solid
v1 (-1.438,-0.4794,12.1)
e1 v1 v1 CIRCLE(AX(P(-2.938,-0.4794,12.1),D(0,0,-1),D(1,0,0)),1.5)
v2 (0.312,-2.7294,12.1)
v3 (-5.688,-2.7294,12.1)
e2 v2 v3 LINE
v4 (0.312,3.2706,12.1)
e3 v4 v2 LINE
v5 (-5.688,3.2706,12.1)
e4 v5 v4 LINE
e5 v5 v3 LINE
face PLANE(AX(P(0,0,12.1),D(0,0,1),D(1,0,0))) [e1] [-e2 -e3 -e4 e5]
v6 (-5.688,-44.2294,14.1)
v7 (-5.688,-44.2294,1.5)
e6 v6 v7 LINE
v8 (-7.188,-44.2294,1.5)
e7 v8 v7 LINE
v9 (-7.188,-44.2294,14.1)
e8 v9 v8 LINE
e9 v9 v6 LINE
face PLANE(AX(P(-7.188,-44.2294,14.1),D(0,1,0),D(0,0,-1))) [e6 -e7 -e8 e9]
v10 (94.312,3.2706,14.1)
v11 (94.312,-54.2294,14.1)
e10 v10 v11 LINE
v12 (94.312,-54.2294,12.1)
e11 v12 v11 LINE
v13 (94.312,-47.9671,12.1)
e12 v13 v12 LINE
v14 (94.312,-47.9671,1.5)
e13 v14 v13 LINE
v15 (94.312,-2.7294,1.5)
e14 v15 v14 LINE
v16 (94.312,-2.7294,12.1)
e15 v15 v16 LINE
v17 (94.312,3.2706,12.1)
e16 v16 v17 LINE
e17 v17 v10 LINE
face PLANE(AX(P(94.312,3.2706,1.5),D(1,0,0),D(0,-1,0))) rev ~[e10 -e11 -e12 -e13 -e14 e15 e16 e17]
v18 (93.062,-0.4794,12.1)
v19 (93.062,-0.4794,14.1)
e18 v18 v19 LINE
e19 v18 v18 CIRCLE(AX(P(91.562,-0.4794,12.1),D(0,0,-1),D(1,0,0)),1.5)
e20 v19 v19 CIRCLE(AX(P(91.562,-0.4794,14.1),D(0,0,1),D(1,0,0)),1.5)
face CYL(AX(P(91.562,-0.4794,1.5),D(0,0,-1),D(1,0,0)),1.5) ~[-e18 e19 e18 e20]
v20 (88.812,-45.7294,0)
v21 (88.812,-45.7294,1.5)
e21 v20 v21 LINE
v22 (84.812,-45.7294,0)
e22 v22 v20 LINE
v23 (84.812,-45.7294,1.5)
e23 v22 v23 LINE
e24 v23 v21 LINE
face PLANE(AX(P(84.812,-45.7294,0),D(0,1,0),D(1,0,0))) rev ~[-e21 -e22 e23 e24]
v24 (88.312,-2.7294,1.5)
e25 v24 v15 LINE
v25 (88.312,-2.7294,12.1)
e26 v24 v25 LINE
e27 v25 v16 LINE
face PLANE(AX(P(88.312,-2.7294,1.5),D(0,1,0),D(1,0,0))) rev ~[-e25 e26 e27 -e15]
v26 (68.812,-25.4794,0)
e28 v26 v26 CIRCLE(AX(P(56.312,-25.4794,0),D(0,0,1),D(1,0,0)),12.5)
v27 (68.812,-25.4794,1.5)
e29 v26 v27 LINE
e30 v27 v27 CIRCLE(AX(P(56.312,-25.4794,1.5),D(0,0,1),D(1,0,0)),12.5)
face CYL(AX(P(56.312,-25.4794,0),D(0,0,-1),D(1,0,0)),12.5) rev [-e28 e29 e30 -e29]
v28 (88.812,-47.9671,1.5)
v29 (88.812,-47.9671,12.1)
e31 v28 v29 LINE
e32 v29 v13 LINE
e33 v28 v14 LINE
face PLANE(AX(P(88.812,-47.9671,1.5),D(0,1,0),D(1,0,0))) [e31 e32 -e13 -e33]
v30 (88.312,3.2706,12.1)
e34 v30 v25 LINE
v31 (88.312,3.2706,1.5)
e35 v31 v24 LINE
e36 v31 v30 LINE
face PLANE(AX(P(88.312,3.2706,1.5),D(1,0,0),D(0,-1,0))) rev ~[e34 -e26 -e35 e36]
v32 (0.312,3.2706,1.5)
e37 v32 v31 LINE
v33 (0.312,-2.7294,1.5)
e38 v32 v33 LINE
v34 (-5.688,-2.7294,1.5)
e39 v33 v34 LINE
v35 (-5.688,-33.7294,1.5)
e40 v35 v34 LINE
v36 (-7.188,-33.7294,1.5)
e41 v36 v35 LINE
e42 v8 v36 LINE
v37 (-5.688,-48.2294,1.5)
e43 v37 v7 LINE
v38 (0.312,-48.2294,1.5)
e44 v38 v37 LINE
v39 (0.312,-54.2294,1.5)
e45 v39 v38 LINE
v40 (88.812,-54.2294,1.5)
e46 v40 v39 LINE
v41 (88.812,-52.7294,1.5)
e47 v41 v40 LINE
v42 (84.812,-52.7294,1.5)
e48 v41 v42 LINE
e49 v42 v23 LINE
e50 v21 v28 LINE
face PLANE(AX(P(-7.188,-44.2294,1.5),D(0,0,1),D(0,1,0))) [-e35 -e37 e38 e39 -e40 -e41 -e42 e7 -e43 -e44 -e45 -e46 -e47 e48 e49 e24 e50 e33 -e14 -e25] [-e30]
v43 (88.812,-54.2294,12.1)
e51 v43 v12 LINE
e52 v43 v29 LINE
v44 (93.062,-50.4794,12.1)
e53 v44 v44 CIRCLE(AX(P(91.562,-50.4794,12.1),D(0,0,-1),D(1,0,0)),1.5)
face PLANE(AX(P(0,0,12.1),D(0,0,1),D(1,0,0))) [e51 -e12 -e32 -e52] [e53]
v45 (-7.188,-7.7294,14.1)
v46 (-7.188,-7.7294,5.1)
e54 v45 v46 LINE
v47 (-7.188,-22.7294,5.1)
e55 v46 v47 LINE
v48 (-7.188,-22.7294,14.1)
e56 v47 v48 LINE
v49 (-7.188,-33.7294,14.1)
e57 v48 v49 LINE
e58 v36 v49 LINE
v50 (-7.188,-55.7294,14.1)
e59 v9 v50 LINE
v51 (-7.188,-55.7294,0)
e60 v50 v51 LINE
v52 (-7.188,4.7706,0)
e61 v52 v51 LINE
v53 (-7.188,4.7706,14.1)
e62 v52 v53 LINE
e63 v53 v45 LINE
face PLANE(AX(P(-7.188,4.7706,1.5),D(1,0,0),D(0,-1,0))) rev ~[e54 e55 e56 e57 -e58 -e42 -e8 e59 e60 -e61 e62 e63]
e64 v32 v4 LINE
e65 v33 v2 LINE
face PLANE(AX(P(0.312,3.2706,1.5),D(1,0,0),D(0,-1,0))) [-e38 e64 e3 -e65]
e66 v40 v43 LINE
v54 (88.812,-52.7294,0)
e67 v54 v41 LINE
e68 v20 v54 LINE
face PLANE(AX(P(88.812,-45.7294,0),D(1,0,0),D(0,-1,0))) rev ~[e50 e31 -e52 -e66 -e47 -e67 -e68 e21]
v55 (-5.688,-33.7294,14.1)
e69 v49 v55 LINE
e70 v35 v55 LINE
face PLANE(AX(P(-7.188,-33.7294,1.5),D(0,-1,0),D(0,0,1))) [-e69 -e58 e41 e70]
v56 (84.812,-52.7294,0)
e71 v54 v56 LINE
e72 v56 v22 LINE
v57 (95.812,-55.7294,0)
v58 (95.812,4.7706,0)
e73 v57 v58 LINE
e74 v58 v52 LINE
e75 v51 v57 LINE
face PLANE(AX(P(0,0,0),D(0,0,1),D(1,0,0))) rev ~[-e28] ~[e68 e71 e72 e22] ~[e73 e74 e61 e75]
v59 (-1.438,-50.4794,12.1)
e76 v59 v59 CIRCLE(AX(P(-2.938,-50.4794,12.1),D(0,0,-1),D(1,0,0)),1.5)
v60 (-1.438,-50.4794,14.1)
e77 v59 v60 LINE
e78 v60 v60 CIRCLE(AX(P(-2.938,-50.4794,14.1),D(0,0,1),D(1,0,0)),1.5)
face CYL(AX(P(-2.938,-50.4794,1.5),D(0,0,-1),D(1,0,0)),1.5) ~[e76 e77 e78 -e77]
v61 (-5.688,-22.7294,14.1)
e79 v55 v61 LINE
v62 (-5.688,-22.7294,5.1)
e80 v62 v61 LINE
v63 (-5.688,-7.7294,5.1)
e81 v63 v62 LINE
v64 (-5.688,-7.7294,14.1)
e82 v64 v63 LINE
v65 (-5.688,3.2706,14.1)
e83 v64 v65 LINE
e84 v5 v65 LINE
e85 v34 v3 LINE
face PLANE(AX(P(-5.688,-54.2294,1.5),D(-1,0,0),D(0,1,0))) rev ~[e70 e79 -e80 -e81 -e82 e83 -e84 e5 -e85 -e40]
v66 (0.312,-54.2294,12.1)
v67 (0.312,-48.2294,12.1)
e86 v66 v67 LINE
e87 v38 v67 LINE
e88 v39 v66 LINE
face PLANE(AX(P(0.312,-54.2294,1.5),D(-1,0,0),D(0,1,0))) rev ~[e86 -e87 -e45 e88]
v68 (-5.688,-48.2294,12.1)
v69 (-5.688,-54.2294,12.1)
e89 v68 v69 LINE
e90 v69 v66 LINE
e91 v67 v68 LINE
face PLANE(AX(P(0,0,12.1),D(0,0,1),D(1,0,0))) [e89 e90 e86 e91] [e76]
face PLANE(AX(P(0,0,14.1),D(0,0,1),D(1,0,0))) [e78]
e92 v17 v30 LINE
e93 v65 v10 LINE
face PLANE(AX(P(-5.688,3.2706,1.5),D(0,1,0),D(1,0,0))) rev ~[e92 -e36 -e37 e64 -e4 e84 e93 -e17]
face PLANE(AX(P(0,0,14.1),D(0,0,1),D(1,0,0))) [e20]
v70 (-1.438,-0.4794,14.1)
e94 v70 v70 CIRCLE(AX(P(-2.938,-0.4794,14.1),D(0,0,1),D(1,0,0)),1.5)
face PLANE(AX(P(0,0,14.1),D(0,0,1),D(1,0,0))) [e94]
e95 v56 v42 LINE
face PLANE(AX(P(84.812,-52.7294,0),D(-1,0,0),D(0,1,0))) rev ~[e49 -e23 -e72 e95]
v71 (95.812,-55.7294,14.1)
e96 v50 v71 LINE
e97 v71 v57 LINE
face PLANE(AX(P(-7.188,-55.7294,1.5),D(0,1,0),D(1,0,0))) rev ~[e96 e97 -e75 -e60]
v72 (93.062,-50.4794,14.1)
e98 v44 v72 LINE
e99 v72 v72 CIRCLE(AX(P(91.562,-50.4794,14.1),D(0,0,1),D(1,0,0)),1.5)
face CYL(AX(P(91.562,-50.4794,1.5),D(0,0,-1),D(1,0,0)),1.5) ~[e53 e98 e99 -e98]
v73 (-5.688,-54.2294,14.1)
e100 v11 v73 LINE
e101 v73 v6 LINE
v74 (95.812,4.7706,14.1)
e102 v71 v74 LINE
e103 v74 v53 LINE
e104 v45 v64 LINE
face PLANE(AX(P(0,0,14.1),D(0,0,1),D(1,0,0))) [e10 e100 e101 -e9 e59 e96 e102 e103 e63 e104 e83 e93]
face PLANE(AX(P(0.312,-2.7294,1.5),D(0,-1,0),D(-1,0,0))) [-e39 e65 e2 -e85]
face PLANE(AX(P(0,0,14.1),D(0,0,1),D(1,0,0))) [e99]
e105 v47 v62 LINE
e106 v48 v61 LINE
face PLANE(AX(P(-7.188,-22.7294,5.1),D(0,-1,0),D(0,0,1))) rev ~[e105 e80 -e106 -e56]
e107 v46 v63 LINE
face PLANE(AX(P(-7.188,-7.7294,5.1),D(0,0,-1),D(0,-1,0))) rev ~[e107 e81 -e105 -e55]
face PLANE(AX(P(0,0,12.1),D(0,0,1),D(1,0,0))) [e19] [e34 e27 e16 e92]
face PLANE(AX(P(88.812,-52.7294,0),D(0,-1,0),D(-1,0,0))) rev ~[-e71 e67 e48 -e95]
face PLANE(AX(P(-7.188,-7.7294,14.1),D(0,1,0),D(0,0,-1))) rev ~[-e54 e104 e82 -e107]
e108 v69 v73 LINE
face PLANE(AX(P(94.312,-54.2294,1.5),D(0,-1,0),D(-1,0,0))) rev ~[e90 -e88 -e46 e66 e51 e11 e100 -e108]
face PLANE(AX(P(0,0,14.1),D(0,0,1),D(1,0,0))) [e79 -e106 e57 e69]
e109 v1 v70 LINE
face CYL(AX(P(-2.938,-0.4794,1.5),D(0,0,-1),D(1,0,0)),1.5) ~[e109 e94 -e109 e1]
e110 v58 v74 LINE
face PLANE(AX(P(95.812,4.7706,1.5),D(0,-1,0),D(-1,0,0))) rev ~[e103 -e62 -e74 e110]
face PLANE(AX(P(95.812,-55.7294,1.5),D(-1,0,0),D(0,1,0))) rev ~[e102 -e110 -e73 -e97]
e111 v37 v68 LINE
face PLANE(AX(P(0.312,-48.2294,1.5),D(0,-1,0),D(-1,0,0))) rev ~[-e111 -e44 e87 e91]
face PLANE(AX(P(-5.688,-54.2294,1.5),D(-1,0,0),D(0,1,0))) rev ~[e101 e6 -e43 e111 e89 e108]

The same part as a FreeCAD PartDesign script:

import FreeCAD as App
import Part
import Sketcher
Q = App.Units.Quantity

doc = App.newDocument("Part")
body = doc.addObject("PartDesign::Body", "Body")

sketch1 = body.newObject("Sketcher::SketchObject", "Sketch")
sketch1.AttachmentSupport = (doc.getObject("XY_Plane"), [""])
sketch1.MapMode = "FlatFace"
sketch1.addGeometry([
    Part.LineSegment(App.Vector(95.812, -55.7294, 0), App.Vector(95.812, 4.7706, 0)),
    Part.LineSegment(App.Vector(95.812, 4.7706, 0), App.Vector(-7.188, 4.7706, 0)),
    Part.LineSegment(App.Vector(-7.188, 4.7706, 0), App.Vector(-7.188, -55.7294, 0)),
    Part.LineSegment(App.Vector(-7.188, -55.7294, 0), App.Vector(95.812, -55.7294, 0)),
    Part.Circle(App.Vector(56.312, -25.4794, 0), App.Vector(0, 0, 1), 12.5),
], False)
sketch1.addConstraint([
    Sketcher.Constraint("Coincident", 0, 2, 1, 1),
    Sketcher.Constraint("Coincident", 1, 2, 2, 1),
    Sketcher.Constraint("Coincident", 2, 2, 3, 1),
    Sketcher.Constraint("Coincident", 3, 2, 0, 1),
    Sketcher.Constraint("Vertical", 0),
    Sketcher.Constraint("Horizontal", 1),
    Sketcher.Constraint("Vertical", 2),
    Sketcher.Constraint("Horizontal", 3),
    Sketcher.Constraint("Diameter", 4, Q("25 mm")),
    Sketcher.Constraint("DistanceX", 1, 2, 1, 1, Q("103 mm")),
    Sketcher.Constraint("DistanceY", 0, 1, 0, 2, Q("60.5 mm")),
    Sketcher.Constraint("DistanceX", 4, 3, 0, 2, Q("39.5 mm")),
    Sketcher.Constraint("DistanceY", 4, 3, 0, 2, Q("30.25 mm")),
    Sketcher.Constraint("DistanceX", -1, 1, 4, 3, Q("56.312 mm")),
    Sketcher.Constraint("DistanceY", 4, 3, -1, 1, Q("25.4794 mm")),
])
pad1 = body.newObject("PartDesign::Pad", "Pad")
pad1.Profile = sketch1
pad1.Length = 1.5

sketch2 = body.newObject("Sketcher::SketchObject", "Sketch001")
sketch2.AttachmentSupport = (doc.getObject("XY_Plane"), [""])
sketch2.MapMode = "FlatFace"
sketch2.AttachmentOffset = App.Placement(App.Vector(0, 0, 1.5), App.Rotation())
sketch2.addGeometry([
    Part.LineSegment(App.Vector(95.812, -55.7294, 0), App.Vector(95.812, 4.7706, 0)),
    Part.LineSegment(App.Vector(95.812, 4.7706, 0), App.Vector(-7.188, 4.7706, 0)),
    Part.LineSegment(App.Vector(-7.188, 4.7706, 0), App.Vector(-7.188, -55.7294, 0)),
    Part.LineSegment(App.Vector(-7.188, -55.7294, 0), App.Vector(95.812, -55.7294, 0)),
    Part.LineSegment(App.Vector(-5.688, -54.2294, 0), App.Vector(-5.688, 3.2706, 0)),
    Part.LineSegment(App.Vector(-5.688, 3.2706, 0), App.Vector(94.312, 3.2706, 0)),
    Part.LineSegment(App.Vector(94.312, 3.2706, 0), App.Vector(94.312, -54.2294, 0)),
    Part.LineSegment(App.Vector(94.312, -54.2294, 0), App.Vector(-5.688, -54.2294, 0)),
], False)
sketch2.addConstraint([
    Sketcher.Constraint("Coincident", 0, 2, 1, 1),
    Sketcher.Constraint("Coincident", 1, 2, 2, 1),
    Sketcher.Constraint("Coincident", 2, 2, 3, 1),
    Sketcher.Constraint("Coincident", 3, 2, 0, 1),
    Sketcher.Constraint("Coincident", 4, 2, 5, 1),
    Sketcher.Constraint("Coincident", 5, 2, 6, 1),
    Sketcher.Constraint("Coincident", 6, 2, 7, 1),
    Sketcher.Constraint("Coincident", 7, 2, 4, 1),
    Sketcher.Constraint("Vertical", 0),
    Sketcher.Constraint("Horizontal", 1),
    Sketcher.Constraint("Vertical", 2),
    Sketcher.Constraint("Horizontal", 3),
    Sketcher.Constraint("Vertical", 4),
    Sketcher.Constraint("Horizontal", 5),
    Sketcher.Constraint("Vertical", 6),
    Sketcher.Constraint("Horizontal", 7),
    Sketcher.Constraint("DistanceX", 1, 2, 4, 2, Q("1.5 mm")),
    Sketcher.Constraint("DistanceY", 4, 2, 1, 2, Q("1.5 mm")),
    Sketcher.Constraint("DistanceX", 5, 2, 0, 2, Q("1.5 mm")),
    Sketcher.Constraint("DistanceY", 3, 2, 6, 2, Q("1.5 mm")),
    Sketcher.Constraint("DistanceX", 1, 2, 1, 1, Q("103 mm")),
    Sketcher.Constraint("DistanceY", 0, 1, 0, 2, Q("60.5 mm")),
    Sketcher.Constraint("DistanceX", -1, 1, 0, 2, Q("95.812 mm")),
    Sketcher.Constraint("DistanceY", -1, 1, 0, 2, Q("4.7706 mm")),
])
pad2 = body.newObject("PartDesign::Pad", "Pad001")
pad2.Profile = sketch2
pad2.Length = 12.6

sketch3 = body.newObject("Sketcher::SketchObject", "Sketch002")
sketch3.AttachmentSupport = (doc.getObject("XY_Plane"), [""])
sketch3.MapMode = "FlatFace"
sketch3.addGeometry([
    Part.LineSegment(App.Vector(84.812, -52.7294, 0), App.Vector(84.812, -45.7294, 0)),
    Part.LineSegment(App.Vector(84.812, -45.7294, 0), App.Vector(88.812, -45.7294, 0)),
    Part.LineSegment(App.Vector(88.812, -45.7294, 0), App.Vector(88.812, -52.7294, 0)),
    Part.LineSegment(App.Vector(88.812, -52.7294, 0), App.Vector(84.812, -52.7294, 0)),
], False)
sketch3.addConstraint([
    Sketcher.Constraint("Coincident", 0, 2, 1, 1),
    Sketcher.Constraint("Coincident", 1, 2, 2, 1),
    Sketcher.Constraint("Coincident", 2, 2, 3, 1),
    Sketcher.Constraint("Coincident", 3, 2, 0, 1),
    Sketcher.Constraint("Vertical", 0),
    Sketcher.Constraint("Horizontal", 1),
    Sketcher.Constraint("Vertical", 2),
    Sketcher.Constraint("Horizontal", 3),
    Sketcher.Constraint("DistanceX", 1, 1, 1, 2, Q("4 mm")),
    Sketcher.Constraint("DistanceY", 0, 1, 0, 2, Q("7 mm")),
    Sketcher.Constraint("DistanceX", -1, 1, 0, 2, Q("84.812 mm")),
    Sketcher.Constraint("DistanceY", 0, 2, -1, 1, Q("45.7294 mm")),
])
pocket1 = body.newObject("PartDesign::Pocket", "Pocket")
pocket1.Profile = sketch3
pocket1.Type = "UpToFirst"
pocket1.Reversed = True

sketch4 = body.newObject("Sketcher::SketchObject", "Sketch003")
sketch4.AttachmentSupport = (doc.getObject("YZ_Plane"), [""])
sketch4.MapMode = "FlatFace"
sketch4.AttachmentOffset = App.Placement(App.Vector(0, 0, -7.188), App.Rotation())
sketch4.addGeometry([
    Part.LineSegment(App.Vector(-44.2294, 14.1, 0), App.Vector(-33.7294, 14.1, 0)),
    Part.LineSegment(App.Vector(-33.7294, 14.1, 0), App.Vector(-33.7294, 1.5, 0)),
    Part.LineSegment(App.Vector(-33.7294, 1.5, 0), App.Vector(-44.2294, 1.5, 0)),
    Part.LineSegment(App.Vector(-44.2294, 1.5, 0), App.Vector(-44.2294, 14.1, 0)),
    Part.LineSegment(App.Vector(-22.7294, 14.1, 0), App.Vector(-7.7294, 14.1, 0)),
    Part.LineSegment(App.Vector(-7.7294, 14.1, 0), App.Vector(-7.7294, 5.1, 0)),
    Part.LineSegment(App.Vector(-7.7294, 5.1, 0), App.Vector(-22.7294, 5.1, 0)),
    Part.LineSegment(App.Vector(-22.7294, 5.1, 0), App.Vector(-22.7294, 14.1, 0)),
], False)
sketch4.addConstraint([
    Sketcher.Constraint("Coincident", 0, 2, 1, 1),
    Sketcher.Constraint("Coincident", 1, 2, 2, 1),
    Sketcher.Constraint("Coincident", 2, 2, 3, 1),
    Sketcher.Constraint("Coincident", 3, 2, 0, 1),
    Sketcher.Constraint("Coincident", 4, 2, 5, 1),
    Sketcher.Constraint("Coincident", 5, 2, 6, 1),
    Sketcher.Constraint("Coincident", 6, 2, 7, 1),
    Sketcher.Constraint("Coincident", 7, 2, 4, 1),
    Sketcher.Constraint("Horizontal", 0),
    Sketcher.Constraint("Vertical", 1),
    Sketcher.Constraint("Horizontal", 2),
    Sketcher.Constraint("Vertical", 3),
    Sketcher.Constraint("Horizontal", 4),
    Sketcher.Constraint("Vertical", 5),
    Sketcher.Constraint("Horizontal", 6),
    Sketcher.Constraint("Vertical", 7),
    Sketcher.Constraint("Horizontal", 3, 2, 4, 2),
    Sketcher.Constraint("DistanceY", 5, 2, 5, 1, Q("9 mm")),
    Sketcher.Constraint("DistanceY", 1, 2, 1, 1, Q("12.6 mm")),
    Sketcher.Constraint("DistanceX", 4, 1, 4, 2, Q("15 mm")),
    Sketcher.Constraint("DistanceX", 0, 1, 0, 2, Q("10.5 mm")),
    Sketcher.Constraint("DistanceX", 0, 2, 4, 2, Q("26 mm")),
    Sketcher.Constraint("DistanceY", -1, 1, 0, 2, Q("14.1 mm")),
    Sketcher.Constraint("DistanceX", 0, 2, -1, 1, Q("33.7294 mm")),
])
pocket2 = body.newObject("PartDesign::Pocket", "Pocket001")
pocket2.Profile = sketch4
pocket2.Length = 1.5
pocket2.Reversed = True

sketch5 = body.newObject("Sketcher::SketchObject", "Sketch004")
sketch5.AttachmentSupport = (doc.getObject("XY_Plane"), [""])
sketch5.MapMode = "FlatFace"
sketch5.AttachmentOffset = App.Placement(App.Vector(0, 0, 1.5), App.Rotation())
sketch5.addGeometry([
    Part.Circle(App.Vector(-2.938, -0.4794, 0), App.Vector(0, 0, 1), 1.5),
    Part.Circle(App.Vector(91.562, -0.4794, 0), App.Vector(0, 0, 1), 1.5),
    Part.Circle(App.Vector(-2.938, -50.4794, 0), App.Vector(0, 0, 1), 1.5),
    Part.Circle(App.Vector(91.562, -50.4794, 0), App.Vector(0, 0, 1), 1.5),
], False)
sketch5.addConstraint([
    Sketcher.Constraint("Equal", 0, 1),
    Sketcher.Constraint("Equal", 1, 2),
    Sketcher.Constraint("Equal", 2, 3),
    Sketcher.Constraint("Horizontal", 0, 3, 1, 3),
    Sketcher.Constraint("Horizontal", 2, 3, 3, 3),
    Sketcher.Constraint("Vertical", 0, 3, 2, 3),
    Sketcher.Constraint("Vertical", 1, 3, 3, 3),
    Sketcher.Constraint("Diameter", 0, Q("3 mm")),
    Sketcher.Constraint("DistanceY", 2, 3, 0, 3, Q("50 mm")),
    Sketcher.Constraint("DistanceX", 0, 3, 1, 3, Q("94.5 mm")),
    Sketcher.Constraint("DistanceX", 0, 3, -1, 1, Q("2.938 mm")),
    Sketcher.Constraint("DistanceY", 0, 3, -1, 1, Q("0.4794 mm")),
])
pad3 = body.newObject("PartDesign::Pad", "Pad002")
pad3.Profile = sketch5
pad3.Length = 12.6

sketch6 = body.newObject("Sketcher::SketchObject", "Sketch005")
sketch6.AttachmentSupport = (doc.getObject("XY_Plane"), [""])
sketch6.MapMode = "FlatFace"
sketch6.AttachmentOffset = App.Placement(App.Vector(0, 0, 1.5), App.Rotation())
sketch6.addGeometry([
    Part.LineSegment(App.Vector(0.312, 3.2706, 0), App.Vector(-5.688, 3.2706, 0)),
    Part.LineSegment(App.Vector(-5.688, 3.2706, 0), App.Vector(-5.688, -2.7294, 0)),
    Part.LineSegment(App.Vector(-5.688, -2.7294, 0), App.Vector(0.312, -2.7294, 0)),
    Part.LineSegment(App.Vector(0.312, -2.7294, 0), App.Vector(0.312, 3.2706, 0)),
    Part.LineSegment(App.Vector(94.312, 3.2706, 0), App.Vector(88.312, 3.2706, 0)),
    Part.LineSegment(App.Vector(88.312, 3.2706, 0), App.Vector(88.312, -2.7294, 0)),
    Part.LineSegment(App.Vector(88.312, -2.7294, 0), App.Vector(94.312, -2.7294, 0)),
    Part.LineSegment(App.Vector(94.312, -2.7294, 0), App.Vector(94.312, 3.2706, 0)),
    Part.LineSegment(App.Vector(-5.688, -48.2294, 0), App.Vector(-5.688, -54.2294, 0)),
    Part.LineSegment(App.Vector(-5.688, -54.2294, 0), App.Vector(0.312, -54.2294, 0)),
    Part.LineSegment(App.Vector(0.312, -54.2294, 0), App.Vector(0.312, -48.2294, 0)),
    Part.LineSegment(App.Vector(0.312, -48.2294, 0), App.Vector(-5.688, -48.2294, 0)),
    Part.LineSegment(App.Vector(88.812, -47.9671, 0), App.Vector(88.812, -54.2294, 0)),
    Part.LineSegment(App.Vector(88.812, -54.2294, 0), App.Vector(94.312, -54.2294, 0)),
    Part.LineSegment(App.Vector(94.312, -54.2294, 0), App.Vector(94.312, -47.9671, 0)),
    Part.LineSegment(App.Vector(94.312, -47.9671, 0), App.Vector(88.812, -47.9671, 0)),
], False)
sketch6.addConstraint([
    Sketcher.Constraint("Coincident", 0, 2, 1, 1),
    Sketcher.Constraint("Coincident", 1, 2, 2, 1),
    Sketcher.Constraint("Coincident", 2, 2, 3, 1),
    Sketcher.Constraint("Coincident", 3, 2, 0, 1),
    Sketcher.Constraint("Coincident", 4, 2, 5, 1),
    Sketcher.Constraint("Coincident", 5, 2, 6, 1),
    Sketcher.Constraint("Coincident", 6, 2, 7, 1),
    Sketcher.Constraint("Coincident", 7, 2, 4, 1),
    Sketcher.Constraint("Coincident", 8, 2, 9, 1),
    Sketcher.Constraint("Coincident", 9, 2, 10, 1),
    Sketcher.Constraint("Coincident", 10, 2, 11, 1),
    Sketcher.Constraint("Coincident", 11, 2, 8, 1),
    Sketcher.Constraint("Coincident", 12, 2, 13, 1),
    Sketcher.Constraint("Coincident", 13, 2, 14, 1),
    Sketcher.Constraint("Coincident", 14, 2, 15, 1),
    Sketcher.Constraint("Coincident", 15, 2, 12, 1),
    Sketcher.Constraint("Horizontal", 0),
    Sketcher.Constraint("Vertical", 1),
    Sketcher.Constraint("Horizontal", 2),
    Sketcher.Constraint("Vertical", 3),
    Sketcher.Constraint("Horizontal", 4),
    Sketcher.Constraint("Vertical", 5),
    Sketcher.Constraint("Horizontal", 6),
    Sketcher.Constraint("Vertical", 7),
    Sketcher.Constraint("Vertical", 8),
    Sketcher.Constraint("Horizontal", 9),
    Sketcher.Constraint("Vertical", 10),
    Sketcher.Constraint("Horizontal", 11),
    Sketcher.Constraint("Vertical", 12),
    Sketcher.Constraint("Horizontal", 13),
    Sketcher.Constraint("Vertical", 14),
    Sketcher.Constraint("Horizontal", 15),
    Sketcher.Constraint("Horizontal", 3, 2, 4, 2),
    Sketcher.Constraint("Horizontal", 2, 2, 5, 2),
    Sketcher.Constraint("Horizontal", 9, 2, 12, 2),
    Sketcher.Constraint("Vertical", 1, 2, 8, 2),
    Sketcher.Constraint("Vertical", 3, 2, 9, 2),
    Sketcher.Constraint("Vertical", 7, 2, 13, 2),
    Sketcher.Constraint("Equal", 2, 4),
    Sketcher.Constraint("Equal", 11, 1),
    Sketcher.Constraint("Equal", 7, 8),
    Sketcher.Constraint("DistanceX", 0, 2, 0, 1, Q("6 mm")),
    Sketcher.Constraint("DistanceX", 13, 1, 13, 2, Q("5.5 mm")),
    Sketcher.Constraint("DistanceX", 3, 2, 4, 2, Q("88 mm")),
    Sketcher.Constraint("DistanceY", 8, 2, 1, 2, Q("51.5 mm")),
    Sketcher.Constraint("DistanceY", 12, 2, 12, 1, Q("6.2623 mm")),
    Sketcher.Constraint("DistanceX", 0, 2, -1, 1, Q("5.688 mm")),
    Sketcher.Constraint("DistanceY", 14, 2, -1, 1, Q("47.967 mm")),
])
pad4 = body.newObject("PartDesign::Pad", "Pad003")
pad4.Profile = sketch6
pad4.Length = 10.6

doc.recompute()
